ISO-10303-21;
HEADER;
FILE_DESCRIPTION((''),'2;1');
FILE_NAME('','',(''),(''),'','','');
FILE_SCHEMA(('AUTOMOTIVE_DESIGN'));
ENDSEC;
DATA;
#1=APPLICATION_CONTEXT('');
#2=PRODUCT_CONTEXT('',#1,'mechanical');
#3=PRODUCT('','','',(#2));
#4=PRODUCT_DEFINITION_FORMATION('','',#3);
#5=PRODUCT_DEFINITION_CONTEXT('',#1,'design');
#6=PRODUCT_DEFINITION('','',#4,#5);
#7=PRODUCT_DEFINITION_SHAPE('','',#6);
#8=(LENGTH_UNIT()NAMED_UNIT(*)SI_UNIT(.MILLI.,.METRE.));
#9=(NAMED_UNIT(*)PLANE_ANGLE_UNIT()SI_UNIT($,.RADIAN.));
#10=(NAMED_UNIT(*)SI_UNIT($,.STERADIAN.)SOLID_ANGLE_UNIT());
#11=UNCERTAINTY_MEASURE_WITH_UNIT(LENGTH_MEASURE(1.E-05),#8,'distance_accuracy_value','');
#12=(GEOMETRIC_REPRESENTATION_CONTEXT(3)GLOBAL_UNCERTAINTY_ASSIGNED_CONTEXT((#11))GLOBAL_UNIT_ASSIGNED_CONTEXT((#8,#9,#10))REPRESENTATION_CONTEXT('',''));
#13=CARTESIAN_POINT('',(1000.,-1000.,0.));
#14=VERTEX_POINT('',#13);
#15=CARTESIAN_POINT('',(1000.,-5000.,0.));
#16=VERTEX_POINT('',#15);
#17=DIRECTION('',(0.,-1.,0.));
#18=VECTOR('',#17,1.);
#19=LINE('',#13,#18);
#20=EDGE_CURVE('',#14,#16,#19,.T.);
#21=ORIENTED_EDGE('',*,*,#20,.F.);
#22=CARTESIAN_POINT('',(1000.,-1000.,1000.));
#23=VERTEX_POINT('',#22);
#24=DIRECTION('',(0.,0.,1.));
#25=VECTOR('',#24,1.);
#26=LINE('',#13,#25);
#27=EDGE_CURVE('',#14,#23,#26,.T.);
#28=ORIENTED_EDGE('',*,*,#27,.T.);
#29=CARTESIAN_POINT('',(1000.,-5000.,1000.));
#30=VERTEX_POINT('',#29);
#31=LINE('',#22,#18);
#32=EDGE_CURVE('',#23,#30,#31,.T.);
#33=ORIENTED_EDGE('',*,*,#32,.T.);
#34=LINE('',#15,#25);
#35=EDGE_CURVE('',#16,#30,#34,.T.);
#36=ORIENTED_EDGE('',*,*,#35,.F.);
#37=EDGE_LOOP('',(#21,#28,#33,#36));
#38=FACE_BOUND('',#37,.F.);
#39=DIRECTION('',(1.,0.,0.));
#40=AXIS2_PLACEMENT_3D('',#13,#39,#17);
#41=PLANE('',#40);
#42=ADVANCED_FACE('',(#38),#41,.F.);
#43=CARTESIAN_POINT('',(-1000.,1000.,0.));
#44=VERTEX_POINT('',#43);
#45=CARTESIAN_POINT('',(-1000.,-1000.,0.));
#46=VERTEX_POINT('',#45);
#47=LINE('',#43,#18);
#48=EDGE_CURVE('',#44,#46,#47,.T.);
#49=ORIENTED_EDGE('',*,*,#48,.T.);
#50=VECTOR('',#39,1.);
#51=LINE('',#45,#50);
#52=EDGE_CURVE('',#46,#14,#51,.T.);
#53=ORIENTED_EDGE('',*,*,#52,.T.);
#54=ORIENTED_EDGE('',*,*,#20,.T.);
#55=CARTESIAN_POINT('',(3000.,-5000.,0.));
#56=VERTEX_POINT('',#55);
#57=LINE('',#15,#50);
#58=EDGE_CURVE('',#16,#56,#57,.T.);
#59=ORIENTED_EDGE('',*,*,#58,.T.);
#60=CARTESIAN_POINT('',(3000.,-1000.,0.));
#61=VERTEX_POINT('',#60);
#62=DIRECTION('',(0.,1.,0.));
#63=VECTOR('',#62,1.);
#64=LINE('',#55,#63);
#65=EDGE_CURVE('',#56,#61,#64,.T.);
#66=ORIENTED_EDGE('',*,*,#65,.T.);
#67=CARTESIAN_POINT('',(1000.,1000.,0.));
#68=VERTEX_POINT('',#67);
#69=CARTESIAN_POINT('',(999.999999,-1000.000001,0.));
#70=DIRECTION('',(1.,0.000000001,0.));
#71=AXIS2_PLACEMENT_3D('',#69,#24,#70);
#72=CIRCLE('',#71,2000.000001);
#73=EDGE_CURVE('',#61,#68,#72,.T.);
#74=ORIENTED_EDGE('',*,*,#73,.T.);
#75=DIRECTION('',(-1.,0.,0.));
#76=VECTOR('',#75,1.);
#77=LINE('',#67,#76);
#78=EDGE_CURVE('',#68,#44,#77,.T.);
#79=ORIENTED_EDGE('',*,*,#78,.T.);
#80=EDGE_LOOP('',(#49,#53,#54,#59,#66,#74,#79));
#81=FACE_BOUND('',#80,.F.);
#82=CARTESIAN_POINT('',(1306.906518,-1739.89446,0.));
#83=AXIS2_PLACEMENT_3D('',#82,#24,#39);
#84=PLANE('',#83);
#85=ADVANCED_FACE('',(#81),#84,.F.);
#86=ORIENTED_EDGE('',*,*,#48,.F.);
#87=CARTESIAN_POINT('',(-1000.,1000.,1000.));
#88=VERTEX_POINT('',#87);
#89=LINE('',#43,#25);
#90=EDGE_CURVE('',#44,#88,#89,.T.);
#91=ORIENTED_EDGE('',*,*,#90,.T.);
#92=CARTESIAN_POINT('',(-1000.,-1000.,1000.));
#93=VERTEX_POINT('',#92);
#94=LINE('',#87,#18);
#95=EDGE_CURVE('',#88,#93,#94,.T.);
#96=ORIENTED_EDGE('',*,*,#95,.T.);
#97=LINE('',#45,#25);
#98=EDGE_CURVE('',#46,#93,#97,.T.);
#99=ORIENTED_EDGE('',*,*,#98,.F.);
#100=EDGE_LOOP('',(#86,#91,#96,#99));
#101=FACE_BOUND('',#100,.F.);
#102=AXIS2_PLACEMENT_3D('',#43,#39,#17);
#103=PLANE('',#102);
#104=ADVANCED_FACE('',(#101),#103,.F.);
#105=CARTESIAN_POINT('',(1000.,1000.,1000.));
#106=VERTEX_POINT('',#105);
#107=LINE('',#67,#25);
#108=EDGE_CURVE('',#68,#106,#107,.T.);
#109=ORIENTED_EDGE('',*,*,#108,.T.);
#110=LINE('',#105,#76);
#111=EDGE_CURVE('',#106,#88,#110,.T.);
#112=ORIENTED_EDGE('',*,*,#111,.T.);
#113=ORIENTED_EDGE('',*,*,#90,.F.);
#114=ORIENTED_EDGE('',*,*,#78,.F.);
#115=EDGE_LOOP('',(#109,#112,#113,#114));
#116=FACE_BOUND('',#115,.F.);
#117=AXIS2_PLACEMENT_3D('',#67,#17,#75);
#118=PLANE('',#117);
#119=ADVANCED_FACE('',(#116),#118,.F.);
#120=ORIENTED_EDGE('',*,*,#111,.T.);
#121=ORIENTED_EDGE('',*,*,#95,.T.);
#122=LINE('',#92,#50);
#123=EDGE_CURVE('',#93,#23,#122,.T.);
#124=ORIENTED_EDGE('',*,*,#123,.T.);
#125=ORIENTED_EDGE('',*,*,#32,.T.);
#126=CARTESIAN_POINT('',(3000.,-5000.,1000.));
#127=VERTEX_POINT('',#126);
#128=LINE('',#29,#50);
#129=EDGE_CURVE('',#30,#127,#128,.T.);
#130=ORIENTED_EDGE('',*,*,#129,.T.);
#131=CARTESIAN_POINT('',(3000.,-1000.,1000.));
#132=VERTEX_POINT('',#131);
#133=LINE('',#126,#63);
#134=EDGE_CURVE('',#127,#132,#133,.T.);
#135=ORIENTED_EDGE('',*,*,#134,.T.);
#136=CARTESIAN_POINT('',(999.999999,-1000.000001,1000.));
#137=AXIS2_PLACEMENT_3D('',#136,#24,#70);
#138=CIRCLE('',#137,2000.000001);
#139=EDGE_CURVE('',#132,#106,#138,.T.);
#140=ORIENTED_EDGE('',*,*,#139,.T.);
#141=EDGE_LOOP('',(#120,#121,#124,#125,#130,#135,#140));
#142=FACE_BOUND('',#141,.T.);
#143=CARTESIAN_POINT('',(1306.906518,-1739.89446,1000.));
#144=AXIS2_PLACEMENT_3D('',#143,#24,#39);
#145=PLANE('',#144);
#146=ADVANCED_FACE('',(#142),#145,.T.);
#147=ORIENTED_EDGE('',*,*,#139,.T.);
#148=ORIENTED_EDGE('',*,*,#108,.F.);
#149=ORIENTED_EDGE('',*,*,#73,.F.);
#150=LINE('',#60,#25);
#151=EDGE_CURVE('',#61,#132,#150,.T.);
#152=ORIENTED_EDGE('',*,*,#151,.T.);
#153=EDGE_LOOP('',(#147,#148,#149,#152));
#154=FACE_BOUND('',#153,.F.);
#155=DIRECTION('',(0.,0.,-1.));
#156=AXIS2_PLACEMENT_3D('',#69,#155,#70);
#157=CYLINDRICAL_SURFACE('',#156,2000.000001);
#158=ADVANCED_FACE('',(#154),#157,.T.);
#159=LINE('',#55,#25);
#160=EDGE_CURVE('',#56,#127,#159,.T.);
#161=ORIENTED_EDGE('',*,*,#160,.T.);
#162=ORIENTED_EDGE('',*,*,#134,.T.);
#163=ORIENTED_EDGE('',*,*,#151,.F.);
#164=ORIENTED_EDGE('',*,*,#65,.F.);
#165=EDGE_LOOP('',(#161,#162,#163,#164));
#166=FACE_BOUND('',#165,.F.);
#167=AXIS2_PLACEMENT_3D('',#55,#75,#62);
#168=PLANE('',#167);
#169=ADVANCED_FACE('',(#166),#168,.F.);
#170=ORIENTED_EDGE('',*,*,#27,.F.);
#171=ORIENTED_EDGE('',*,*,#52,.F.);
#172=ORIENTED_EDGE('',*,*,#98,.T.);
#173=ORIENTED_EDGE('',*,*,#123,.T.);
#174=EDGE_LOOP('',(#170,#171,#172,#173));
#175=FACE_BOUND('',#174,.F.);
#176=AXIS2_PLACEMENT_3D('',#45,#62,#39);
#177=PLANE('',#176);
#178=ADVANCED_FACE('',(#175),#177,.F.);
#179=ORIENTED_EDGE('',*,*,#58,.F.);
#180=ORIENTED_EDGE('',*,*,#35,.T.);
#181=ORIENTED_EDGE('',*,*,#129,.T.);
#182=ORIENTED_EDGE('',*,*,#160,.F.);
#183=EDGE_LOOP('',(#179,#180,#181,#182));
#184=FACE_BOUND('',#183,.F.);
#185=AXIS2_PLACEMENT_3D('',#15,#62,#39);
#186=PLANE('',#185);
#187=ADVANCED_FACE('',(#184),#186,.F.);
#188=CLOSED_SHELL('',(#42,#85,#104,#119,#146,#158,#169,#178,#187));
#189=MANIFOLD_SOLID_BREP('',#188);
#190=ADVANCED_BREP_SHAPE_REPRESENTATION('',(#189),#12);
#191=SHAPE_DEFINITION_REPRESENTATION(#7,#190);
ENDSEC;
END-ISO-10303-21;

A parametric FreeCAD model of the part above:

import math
import FreeCAD as App
import Part
import Sketcher

V = App.Vector

doc = App.newDocument("Part")
params = doc.addObject("Spreadsheet::Sheet", "Params")
for row, (alias, value) in enumerate([
    ("sketch1_radius", "2000.000001 mm"),
    ("sketch1_height", "4000 mm"),
    ("pad1_length", "1000 mm"),
], start=1):
    params.set(f"A{row}", alias)
    params.set(f"B{row}", "=" + value)
    params.setAlias(f"B{row}", alias)

body = doc.addObject("PartDesign::Body", "Body")

sketch1 = doc.addObject("Sketcher::SketchObject", "Sketch")
body.addObject(sketch1)
sketch1.AttachmentSupport = (doc.XY_Plane, [""])
sketch1.MapMode = "FlatFace"
sketch1.addGeometry(Part.ArcOfCircle(Part.Circle(V(999.999999, -1000.000001, 0), V(0, 0, 1), 2000.000001), math.radians(0), math.radians(90)), False)
sketch1.addGeometry(Part.LineSegment(V(1000, 1000, 0), V(-1000, 1000, 0)), False)
sketch1.addGeometry(Part.LineSegment(V(-1000, 1000, 0), V(-1000, -1000, 0)), False)
sketch1.addGeometry(Part.LineSegment(V(-1000, -1000, 0), V(1000, -1000, 0)), False)
sketch1.addGeometry(Part.LineSegment(V(1000, -1000, 0), V(1000, -5000, 0)), False)
sketch1.addGeometry(Part.LineSegment(V(1000, -5000, 0), V(3000, -5000, 0)), False)
sketch1.addGeometry(Part.LineSegment(V(3000, -5000, 0), V(3000, -1000, 0)), False)
sketch1.addConstraint(Sketcher.Constraint("Coincident", 0, 2, 1, 1))
sketch1.addConstraint(Sketcher.Constraint("Coincident", 1, 2, 2, 1))
sketch1.addConstraint(Sketcher.Constraint("Coincident", 2, 2, 3, 1))
sketch1.addConstraint(Sketcher.Constraint("Coincident", 3, 2, 4, 1))
sketch1.addConstraint(Sketcher.Constraint("Coincident", 4, 2, 5, 1))
sketch1.addConstraint(Sketcher.Constraint("Coincident", 5, 2, 6, 1))
sketch1.addConstraint(Sketcher.Constraint("Coincident", 6, 2, 0, 1))
sketch1.addConstraint(Sketcher.Constraint("Horizontal", 1))
sketch1.addConstraint(Sketcher.Constraint("Vertical", 2))
sketch1.addConstraint(Sketcher.Constraint("Horizontal", 3))
sketch1.addConstraint(Sketcher.Constraint("Vertical", 4))
sketch1.addConstraint(Sketcher.Constraint("Horizontal", 5))
sketch1.addConstraint(Sketcher.Constraint("Vertical", 6))
sketch1.addConstraint(Sketcher.Constraint("Coincident", 3, 2, 0, 3))
sketch1.addConstraint(Sketcher.Constraint("Symmetric", 1, 2, 3, 2, -1, 1))
sketch1.addConstraint(Sketcher.Constraint("Horizontal", 3, 2, 6, 2))
sketch1.addConstraint(Sketcher.Constraint("Equal", 1, 3))
sketch1.addConstraint(Sketcher.Constraint("Equal", 3, 5))
sketch1.addConstraint(Sketcher.Constraint("Radius", 0, 2000.000001))
sketch1.addConstraint(Sketcher.Constraint("DistanceY", 4, 2, 4, 1, 4000.0))
sketch1.setExpression("Constraints[18]", "Params.sketch1_radius")
sketch1.setExpression("Constraints[19]", "Params.sketch1_height")
pad1 = doc.addObject("PartDesign::Pad", "Pad")
body.addObject(pad1)
pad1.Profile = sketch1
pad1.setExpression("Length", "Params.pad1_length")

doc.recompute()
